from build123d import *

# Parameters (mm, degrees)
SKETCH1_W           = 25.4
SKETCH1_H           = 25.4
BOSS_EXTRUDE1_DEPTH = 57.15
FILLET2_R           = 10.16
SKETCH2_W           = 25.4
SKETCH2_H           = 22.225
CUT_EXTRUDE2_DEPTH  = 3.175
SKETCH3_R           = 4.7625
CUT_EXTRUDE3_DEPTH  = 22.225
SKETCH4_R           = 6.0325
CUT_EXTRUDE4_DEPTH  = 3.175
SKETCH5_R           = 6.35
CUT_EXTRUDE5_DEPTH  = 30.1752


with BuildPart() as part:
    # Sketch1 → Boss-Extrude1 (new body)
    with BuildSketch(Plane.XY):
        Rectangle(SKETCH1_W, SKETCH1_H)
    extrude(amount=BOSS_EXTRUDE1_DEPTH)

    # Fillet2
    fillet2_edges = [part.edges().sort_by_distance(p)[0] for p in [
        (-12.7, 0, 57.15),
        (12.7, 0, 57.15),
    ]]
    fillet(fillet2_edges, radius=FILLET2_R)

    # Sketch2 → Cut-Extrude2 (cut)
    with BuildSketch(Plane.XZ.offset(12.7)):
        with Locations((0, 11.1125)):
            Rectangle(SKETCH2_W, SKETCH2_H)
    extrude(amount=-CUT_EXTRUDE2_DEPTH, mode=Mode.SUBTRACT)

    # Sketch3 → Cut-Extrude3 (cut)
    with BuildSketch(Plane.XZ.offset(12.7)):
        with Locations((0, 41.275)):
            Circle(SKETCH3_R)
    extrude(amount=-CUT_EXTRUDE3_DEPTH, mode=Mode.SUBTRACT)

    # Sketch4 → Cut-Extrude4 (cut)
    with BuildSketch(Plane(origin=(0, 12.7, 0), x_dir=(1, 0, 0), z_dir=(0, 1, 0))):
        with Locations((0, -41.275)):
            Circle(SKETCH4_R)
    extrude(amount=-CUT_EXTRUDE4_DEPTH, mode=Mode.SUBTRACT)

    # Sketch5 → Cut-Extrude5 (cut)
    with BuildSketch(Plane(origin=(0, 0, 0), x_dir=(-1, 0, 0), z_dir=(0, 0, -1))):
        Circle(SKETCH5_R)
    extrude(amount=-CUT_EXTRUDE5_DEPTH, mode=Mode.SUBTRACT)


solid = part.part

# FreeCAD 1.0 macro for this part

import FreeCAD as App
import Part
import Sketcher
from FreeCAD import Vector
Q = App.Units.Quantity


def edges_at(feature, points):
    """Names of the edges that pass closest to the given points."""
    edges = feature.Shape.Edges
    near = lambda p: min(range(len(edges)), key=lambda i: edges[i].distToShape(Part.Vertex(*p))[0])
    return sorted({f"Edge{near(p) + 1}" for p in points})


def add_polygon(sketch, points):
    """Adds a closed chain of lines whose ends are joined by coincident constraints."""
    first, n = sketch.GeometryCount, len(points)
    for a, b in zip(points, points[1:] + points[:1]):
        sketch.addGeometry(Part.LineSegment(App.Vector(*a, 0), App.Vector(*b, 0)), False)
    for i in range(n):
        sketch.addConstraint(Sketcher.Constraint("Coincident", first + i, 2, first + (i + 1) % n, 1))

doc = App.newDocument("Part")
params = doc.addObject("Spreadsheet::Sheet", "Params")
for row, (alias, value) in enumerate([
    ("sketch1_width", "1 in"),
    ("pad1_length", "2.25 in"),
    ("fillet_radius", "0.4 in"),
    ("sketch2_width", "1 in"),
    ("sketch2_height", "0.875 in"),
    ("pocket1_length", "0.125 in"),
    ("sketch3_diameter", "0.375 in"),
    ("pocket2_length", "0.875 in"),
    ("sketch4_diameter", "0.475 in"),
    ("pocket3_length", "0.125 in"),
    ("sketch5_diameter", "0.5 in"),
    ("pocket4_length", "1.188 in"),
], start=1):
    params.set(f"A{row}", alias)
    params.set(f"B{row}", "=" + value)
    params.setAlias(f"B{row}", alias)

body = doc.addObject("PartDesign::Body", "Body")

# Sketch on XY plane
sketch1 = body.newObject("Sketcher::SketchObject", "Sketch")
sketch1.AttachmentSupport = (doc.getObject("XY_Plane"), [""])
sketch1.MapMode = "FlatFace"
add_polygon(sketch1, [(-12.7, 12.7), (-12.7, -12.7), (12.7, -12.7), (12.7, 12.7)])  # lines 0-3
sketch1.addConstraint(Sketcher.Constraint("Vertical", 0))
sketch1.addConstraint(Sketcher.Constraint("Horizontal", 1))
sketch1.addConstraint(Sketcher.Constraint("Vertical", 2))
sketch1.addConstraint(Sketcher.Constraint("Horizontal", 3))
sketch1.addConstraint(Sketcher.Constraint("Symmetric", 0, 2, 2, 2, -1, 1))
sketch1.addConstraint(Sketcher.Constraint("Equal", 3, 0))
sketch1.addConstraint(Sketcher.Constraint("DistanceX", 1, 1, 1, 2, Q("1 in")))
sketch1.setExpression("Constraints[10]", "Params.sketch1_width")
pad1 = body.newObject("PartDesign::Pad", "Pad")
pad1.Profile = sketch1
pad1.setExpression("Length", "Params.pad1_length")
doc.recompute()

fillet = body.newObject("PartDesign::Fillet", "Fillet")
fillet.Base = (pad1, edges_at(pad1, [(-12.7, 0, 57.15), (12.7, 0, 57.15)]))
fillet.setExpression("Radius", "Params.fillet_radius")

# Sketch on XZ plane
sketch2 = body.newObject("Sketcher::SketchObject", "Sketch001")
sketch2.AttachmentSupport = (doc.getObject("XZ_Plane"), [""])
sketch2.MapMode = "FlatFace"
sketch2.AttachmentOffset = App.Placement(Vector(0, 0, 0.5 * 25.4), App.Rotation())
add_polygon(sketch2, [(-12.7, 22.225), (-12.7, 0), (12.7, 0), (12.7, 22.225)])  # lines 0-3
sketch2.addConstraint(Sketcher.Constraint("Vertical", 0))
sketch2.addConstraint(Sketcher.Constraint("Horizontal", 1))
sketch2.addConstraint(Sketcher.Constraint("Vertical", 2))
sketch2.addConstraint(Sketcher.Constraint("Horizontal", 3))
sketch2.addConstraint(Sketcher.Constraint("Symmetric", 0, 2, 1, 2, -1, 1))
sketch2.addConstraint(Sketcher.Constraint("DistanceX", 1, 1, 1, 2, Q("1 in")))
sketch2.addConstraint(Sketcher.Constraint("DistanceY", 0, 2, 0, 1, Q("0.875 in")))
sketch2.setExpression("Constraints[9]", "Params.sketch2_width")
sketch2.setExpression("Constraints[10]", "Params.sketch2_height")
pocket1 = body.newObject("PartDesign::Pocket", "Pocket")
pocket1.Profile = sketch2
pocket1.setExpression("Length", "Params.pocket1_length")

# Sketch on XZ plane
sketch3 = body.newObject("Sketcher::SketchObject", "Sketch002")
sketch3.AttachmentSupport = (doc.getObject("XZ_Plane"), [""])
sketch3.MapMode = "FlatFace"
sketch3.AttachmentOffset = App.Placement(Vector(0, 0, 0.5 * 25.4), App.Rotation())
sketch3.addGeometry(Part.Circle(Vector(0, 41.275, 0), Vector(0, 0, 1), 4.7625), False)
sketch3.addConstraint(Sketcher.Constraint("PointOnObject", 0, 3, -2))
sketch3.addConstraint(Sketcher.Constraint("Diameter", 0, Q("0.375 in")))
sketch3.addConstraint(Sketcher.Constraint("DistanceY", -1, 1, 0, 3, Q("1.625 in")))
sketch3.setExpression("Constraints[1]", "Params.sketch3_diameter")
pocket2 = body.newObject("PartDesign::Pocket", "Pocket001")
pocket2.Profile = sketch3
pocket2.setExpression("Length", "Params.pocket2_length")

# Sketch on XZ plane
sketch4 = body.newObject("Sketcher::SketchObject", "Sketch003")
sketch4.AttachmentSupport = (doc.getObject("XZ_Plane"), [""])
sketch4.MapMode = "FlatFace"
sketch4.AttachmentOffset = App.Placement(Vector(0, 0, -0.5 * 25.4), App.Rotation())
sketch4.addGeometry(Part.Circle(Vector(0, 41.275, 0), Vector(0, 0, 1), 6.0325), False)
sketch4.addConstraint(Sketcher.Constraint("PointOnObject", 0, 3, -2))
sketch4.addConstraint(Sketcher.Constraint("Diameter", 0, Q("0.475 in")))
sketch4.addConstraint(Sketcher.Constraint("DistanceY", -1, 1, 0, 3, Q("1.625 in")))
sketch4.setExpression("Constraints[1]", "Params.sketch4_diameter")
pocket3 = body.newObject("PartDesign::Pocket", "Pocket002")
pocket3.Profile = sketch4
pocket3.setExpression("Length", "Params.pocket3_length")
pocket3.Reversed = True

# Sketch on XY plane
sketch5 = body.newObject("Sketcher::SketchObject", "Sketch004")
sketch5.AttachmentSupport = (doc.getObject("XY_Plane"), [""])
sketch5.MapMode = "FlatFace"
sketch5.addGeometry(Part.Circle(Vector(0, 0, 0), Vector(0, 0, 1), 6.35), False)
sketch5.addConstraint(Sketcher.Constraint("Coincident", 0, 3, -1, 1))
sketch5.addConstraint(Sketcher.Constraint("Diameter", 0, Q("0.5 in")))
sketch5.setExpression("Constraints[1]", "Params.sketch5_diameter")
pocket4 = body.newObject("PartDesign::Pocket", "Pocket003")
pocket4.Profile = sketch5
pocket4.setExpression("Length", "Params.pocket4_length")
pocket4.Reversed = True

doc.recompute()
